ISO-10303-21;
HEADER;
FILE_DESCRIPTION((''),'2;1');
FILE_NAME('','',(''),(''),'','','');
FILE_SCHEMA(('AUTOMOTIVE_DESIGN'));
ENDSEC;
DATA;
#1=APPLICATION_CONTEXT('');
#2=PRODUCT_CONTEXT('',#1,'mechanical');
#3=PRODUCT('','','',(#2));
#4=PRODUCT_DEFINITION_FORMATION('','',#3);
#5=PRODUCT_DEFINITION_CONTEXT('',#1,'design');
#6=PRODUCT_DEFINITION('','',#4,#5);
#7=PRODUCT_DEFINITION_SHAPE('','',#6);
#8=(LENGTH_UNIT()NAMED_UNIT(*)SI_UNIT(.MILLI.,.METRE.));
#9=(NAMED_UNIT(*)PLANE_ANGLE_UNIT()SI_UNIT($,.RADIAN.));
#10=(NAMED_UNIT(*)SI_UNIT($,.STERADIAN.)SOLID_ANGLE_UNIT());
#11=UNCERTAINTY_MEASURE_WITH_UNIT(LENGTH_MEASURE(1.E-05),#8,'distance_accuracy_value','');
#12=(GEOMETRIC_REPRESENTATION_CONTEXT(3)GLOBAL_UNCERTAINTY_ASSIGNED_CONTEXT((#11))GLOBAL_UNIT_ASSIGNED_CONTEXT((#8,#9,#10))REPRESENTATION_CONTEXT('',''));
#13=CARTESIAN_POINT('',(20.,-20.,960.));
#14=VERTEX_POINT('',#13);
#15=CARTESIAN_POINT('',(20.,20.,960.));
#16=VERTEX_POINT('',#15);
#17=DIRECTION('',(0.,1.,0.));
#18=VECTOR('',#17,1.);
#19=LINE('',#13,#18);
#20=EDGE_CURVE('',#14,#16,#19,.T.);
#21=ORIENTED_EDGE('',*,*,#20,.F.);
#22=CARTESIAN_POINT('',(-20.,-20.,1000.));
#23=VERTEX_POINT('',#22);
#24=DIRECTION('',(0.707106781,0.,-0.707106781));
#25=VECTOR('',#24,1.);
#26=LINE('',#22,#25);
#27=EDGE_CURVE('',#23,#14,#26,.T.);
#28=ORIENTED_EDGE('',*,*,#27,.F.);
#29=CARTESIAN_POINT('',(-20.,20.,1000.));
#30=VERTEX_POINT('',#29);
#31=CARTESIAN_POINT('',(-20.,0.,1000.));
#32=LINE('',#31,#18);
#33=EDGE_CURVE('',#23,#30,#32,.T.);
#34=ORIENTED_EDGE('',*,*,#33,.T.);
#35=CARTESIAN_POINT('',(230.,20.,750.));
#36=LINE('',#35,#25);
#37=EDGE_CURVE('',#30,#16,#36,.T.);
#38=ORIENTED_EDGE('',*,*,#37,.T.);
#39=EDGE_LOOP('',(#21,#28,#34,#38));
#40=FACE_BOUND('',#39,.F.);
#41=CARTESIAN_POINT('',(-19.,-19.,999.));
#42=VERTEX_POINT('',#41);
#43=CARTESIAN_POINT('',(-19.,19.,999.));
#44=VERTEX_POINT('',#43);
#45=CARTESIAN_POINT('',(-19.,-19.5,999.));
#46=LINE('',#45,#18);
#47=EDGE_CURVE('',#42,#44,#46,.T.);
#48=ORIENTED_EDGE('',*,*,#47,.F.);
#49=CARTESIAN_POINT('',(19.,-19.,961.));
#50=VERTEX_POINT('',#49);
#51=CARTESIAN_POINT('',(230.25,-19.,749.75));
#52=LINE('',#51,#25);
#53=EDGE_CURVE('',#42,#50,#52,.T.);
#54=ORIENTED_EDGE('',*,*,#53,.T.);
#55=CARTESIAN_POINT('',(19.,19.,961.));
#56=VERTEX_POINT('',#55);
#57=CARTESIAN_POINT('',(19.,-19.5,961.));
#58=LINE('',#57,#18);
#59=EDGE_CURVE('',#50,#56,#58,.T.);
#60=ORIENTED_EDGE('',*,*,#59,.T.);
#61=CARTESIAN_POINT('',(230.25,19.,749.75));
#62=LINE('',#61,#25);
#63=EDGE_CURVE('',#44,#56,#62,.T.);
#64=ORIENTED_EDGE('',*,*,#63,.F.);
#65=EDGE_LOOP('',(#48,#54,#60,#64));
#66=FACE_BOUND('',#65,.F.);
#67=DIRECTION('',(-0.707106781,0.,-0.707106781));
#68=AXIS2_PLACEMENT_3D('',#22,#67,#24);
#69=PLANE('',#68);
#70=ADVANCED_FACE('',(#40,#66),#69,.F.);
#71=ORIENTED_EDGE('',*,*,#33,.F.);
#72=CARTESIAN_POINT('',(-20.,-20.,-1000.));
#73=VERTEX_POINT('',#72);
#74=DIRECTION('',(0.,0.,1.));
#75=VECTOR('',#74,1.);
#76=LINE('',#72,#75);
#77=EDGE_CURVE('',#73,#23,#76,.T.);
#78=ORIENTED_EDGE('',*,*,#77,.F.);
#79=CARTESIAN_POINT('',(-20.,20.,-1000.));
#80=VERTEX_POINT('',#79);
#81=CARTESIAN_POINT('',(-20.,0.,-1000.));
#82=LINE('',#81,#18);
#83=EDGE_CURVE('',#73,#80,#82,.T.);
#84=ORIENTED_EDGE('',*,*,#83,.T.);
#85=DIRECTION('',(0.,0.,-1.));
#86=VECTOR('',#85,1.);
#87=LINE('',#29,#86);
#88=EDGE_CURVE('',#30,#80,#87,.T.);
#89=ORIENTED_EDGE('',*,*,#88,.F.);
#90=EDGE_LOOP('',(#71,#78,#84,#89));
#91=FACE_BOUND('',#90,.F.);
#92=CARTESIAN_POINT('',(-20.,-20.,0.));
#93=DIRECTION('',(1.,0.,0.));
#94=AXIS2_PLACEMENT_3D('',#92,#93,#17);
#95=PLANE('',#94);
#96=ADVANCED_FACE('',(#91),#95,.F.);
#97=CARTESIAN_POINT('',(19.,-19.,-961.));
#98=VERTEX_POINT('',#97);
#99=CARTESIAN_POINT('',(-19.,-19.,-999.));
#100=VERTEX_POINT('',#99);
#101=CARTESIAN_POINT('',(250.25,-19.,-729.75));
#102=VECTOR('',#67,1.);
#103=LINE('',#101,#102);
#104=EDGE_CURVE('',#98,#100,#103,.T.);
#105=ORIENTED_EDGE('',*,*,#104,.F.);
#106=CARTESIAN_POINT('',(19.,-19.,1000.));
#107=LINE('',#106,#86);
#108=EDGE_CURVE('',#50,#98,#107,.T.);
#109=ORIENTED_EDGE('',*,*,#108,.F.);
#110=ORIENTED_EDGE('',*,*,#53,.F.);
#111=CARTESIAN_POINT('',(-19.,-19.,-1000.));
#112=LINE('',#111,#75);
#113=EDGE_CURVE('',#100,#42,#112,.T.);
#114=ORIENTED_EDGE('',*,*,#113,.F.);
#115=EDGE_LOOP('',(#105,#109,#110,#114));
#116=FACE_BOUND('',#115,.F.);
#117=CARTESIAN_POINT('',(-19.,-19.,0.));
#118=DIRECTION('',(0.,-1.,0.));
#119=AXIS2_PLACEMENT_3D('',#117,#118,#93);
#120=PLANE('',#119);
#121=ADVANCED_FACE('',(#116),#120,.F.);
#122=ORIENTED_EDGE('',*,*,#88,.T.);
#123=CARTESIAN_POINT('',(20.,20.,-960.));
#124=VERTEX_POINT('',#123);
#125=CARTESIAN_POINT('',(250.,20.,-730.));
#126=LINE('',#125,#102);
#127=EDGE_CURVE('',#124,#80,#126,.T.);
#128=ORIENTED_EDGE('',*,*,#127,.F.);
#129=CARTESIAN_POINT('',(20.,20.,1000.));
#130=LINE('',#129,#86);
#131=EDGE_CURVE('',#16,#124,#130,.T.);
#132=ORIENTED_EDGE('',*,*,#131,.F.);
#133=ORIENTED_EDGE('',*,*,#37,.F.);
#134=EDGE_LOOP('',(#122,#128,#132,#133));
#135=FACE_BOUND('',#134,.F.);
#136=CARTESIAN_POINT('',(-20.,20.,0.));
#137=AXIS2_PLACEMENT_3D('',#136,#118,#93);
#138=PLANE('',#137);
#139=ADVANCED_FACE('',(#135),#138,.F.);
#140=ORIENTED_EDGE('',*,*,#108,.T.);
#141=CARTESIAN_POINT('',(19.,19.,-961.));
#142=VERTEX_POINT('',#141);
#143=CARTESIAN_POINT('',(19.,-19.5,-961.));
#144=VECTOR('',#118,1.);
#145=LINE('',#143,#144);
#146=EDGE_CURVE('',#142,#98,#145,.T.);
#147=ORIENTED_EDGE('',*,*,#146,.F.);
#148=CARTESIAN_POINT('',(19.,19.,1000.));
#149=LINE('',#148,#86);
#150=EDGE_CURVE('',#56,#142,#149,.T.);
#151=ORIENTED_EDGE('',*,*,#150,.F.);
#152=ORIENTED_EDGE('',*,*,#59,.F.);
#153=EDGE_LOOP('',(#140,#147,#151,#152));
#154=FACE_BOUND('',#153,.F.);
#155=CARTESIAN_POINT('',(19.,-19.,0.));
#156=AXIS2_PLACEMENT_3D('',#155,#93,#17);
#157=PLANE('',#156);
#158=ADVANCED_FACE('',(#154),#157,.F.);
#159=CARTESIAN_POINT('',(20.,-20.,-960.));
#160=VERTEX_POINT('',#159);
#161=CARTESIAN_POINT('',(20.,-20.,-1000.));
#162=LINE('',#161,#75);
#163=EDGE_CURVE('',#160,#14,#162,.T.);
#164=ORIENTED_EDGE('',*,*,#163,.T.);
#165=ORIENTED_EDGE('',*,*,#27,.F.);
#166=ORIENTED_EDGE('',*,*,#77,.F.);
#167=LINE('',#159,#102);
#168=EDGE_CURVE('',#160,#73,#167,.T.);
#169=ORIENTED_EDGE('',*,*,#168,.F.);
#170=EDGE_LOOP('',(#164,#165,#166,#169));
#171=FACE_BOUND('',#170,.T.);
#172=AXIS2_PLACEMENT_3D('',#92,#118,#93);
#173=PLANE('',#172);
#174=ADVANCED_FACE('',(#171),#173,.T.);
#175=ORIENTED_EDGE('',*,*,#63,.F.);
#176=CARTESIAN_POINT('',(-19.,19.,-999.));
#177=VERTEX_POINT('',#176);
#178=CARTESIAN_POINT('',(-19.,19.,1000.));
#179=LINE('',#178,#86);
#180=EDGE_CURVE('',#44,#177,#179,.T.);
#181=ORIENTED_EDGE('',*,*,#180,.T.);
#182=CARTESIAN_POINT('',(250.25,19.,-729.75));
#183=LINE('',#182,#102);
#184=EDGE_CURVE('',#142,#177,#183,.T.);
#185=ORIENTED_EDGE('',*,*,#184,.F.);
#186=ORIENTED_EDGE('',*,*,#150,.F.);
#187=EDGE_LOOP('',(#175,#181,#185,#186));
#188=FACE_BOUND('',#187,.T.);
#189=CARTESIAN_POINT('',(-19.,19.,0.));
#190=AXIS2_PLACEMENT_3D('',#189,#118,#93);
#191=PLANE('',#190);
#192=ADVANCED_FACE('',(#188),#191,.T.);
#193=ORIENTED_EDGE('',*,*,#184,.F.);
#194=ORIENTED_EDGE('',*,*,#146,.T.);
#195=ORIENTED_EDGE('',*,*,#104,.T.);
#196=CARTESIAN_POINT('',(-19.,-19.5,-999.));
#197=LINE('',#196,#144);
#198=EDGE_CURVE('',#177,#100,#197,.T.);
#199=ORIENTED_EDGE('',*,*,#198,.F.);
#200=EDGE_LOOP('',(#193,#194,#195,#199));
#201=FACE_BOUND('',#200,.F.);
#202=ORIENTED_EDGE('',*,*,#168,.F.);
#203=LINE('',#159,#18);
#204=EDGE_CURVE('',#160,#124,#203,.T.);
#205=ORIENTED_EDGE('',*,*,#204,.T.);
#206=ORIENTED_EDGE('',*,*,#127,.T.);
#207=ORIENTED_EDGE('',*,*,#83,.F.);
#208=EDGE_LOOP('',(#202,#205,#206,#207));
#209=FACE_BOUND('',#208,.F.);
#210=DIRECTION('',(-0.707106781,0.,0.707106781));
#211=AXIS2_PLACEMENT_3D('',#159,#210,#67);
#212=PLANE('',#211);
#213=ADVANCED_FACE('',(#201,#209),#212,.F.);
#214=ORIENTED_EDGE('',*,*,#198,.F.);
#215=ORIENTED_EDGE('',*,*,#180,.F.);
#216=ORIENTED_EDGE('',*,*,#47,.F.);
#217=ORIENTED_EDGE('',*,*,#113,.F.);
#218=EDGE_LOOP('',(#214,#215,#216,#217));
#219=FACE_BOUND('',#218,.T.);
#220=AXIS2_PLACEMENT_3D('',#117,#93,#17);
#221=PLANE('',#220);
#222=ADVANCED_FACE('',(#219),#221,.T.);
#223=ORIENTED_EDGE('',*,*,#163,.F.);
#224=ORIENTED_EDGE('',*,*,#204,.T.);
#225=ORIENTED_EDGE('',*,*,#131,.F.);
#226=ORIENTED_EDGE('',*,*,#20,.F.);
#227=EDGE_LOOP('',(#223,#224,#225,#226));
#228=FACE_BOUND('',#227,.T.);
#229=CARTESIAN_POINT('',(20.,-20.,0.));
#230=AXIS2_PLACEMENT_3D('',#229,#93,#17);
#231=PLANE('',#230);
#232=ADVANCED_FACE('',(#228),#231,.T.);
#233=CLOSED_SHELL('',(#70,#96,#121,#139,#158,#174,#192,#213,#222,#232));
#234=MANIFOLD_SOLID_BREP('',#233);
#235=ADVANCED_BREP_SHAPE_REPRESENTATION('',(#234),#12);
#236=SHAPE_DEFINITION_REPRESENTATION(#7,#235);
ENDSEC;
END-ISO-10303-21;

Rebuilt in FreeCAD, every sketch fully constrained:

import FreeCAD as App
import Part
import Sketcher
from FreeCAD import Vector
Q = App.Units.Quantity

doc = App.newDocument("Part")
body = doc.addObject("PartDesign::Body", "Body")

# Sketch on XY plane
sketch1 = body.newObject("Sketcher::SketchObject", "Sketch")
sketch1.AttachmentSupport = (doc.getObject("XY_Plane"), [""])
sketch1.MapMode = "FlatFace"
sketch1.addGeometry([
    Part.LineSegment(Vector(-20, 20, 0), Vector(-20, -20, 0)),  # 0
    Part.LineSegment(Vector(-20, -20, 0), Vector(20, -20, 0)),  # 1
    Part.LineSegment(Vector(20, -20, 0), Vector(20, 20, 0)),  # 2
    Part.LineSegment(Vector(20, 20, 0), Vector(-20, 20, 0)),  # 3
    Part.LineSegment(Vector(19, -19, 0), Vector(-19, -19, 0)),  # 4
    Part.LineSegment(Vector(-19, -19, 0), Vector(-19, 19, 0)),  # 5
    Part.LineSegment(Vector(-19, 19, 0), Vector(19, 19, 0)),  # 6
    Part.LineSegment(Vector(19, 19, 0), Vector(19, -19, 0)),  # 7
], False)
sketch1.addConstraint([
    Sketcher.Constraint("Coincident", 0, 2, 1, 1),
    Sketcher.Constraint("Coincident", 1, 2, 2, 1),
    Sketcher.Constraint("Coincident", 2, 2, 3, 1),
    Sketcher.Constraint("Coincident", 3, 2, 0, 1),
    Sketcher.Constraint("Coincident", 4, 2, 5, 1),
    Sketcher.Constraint("Coincident", 5, 2, 6, 1),
    Sketcher.Constraint("Coincident", 6, 2, 7, 1),
    Sketcher.Constraint("Coincident", 7, 2, 4, 1),
    Sketcher.Constraint("Vertical", 0),
    Sketcher.Constraint("Horizontal", 1),
    Sketcher.Constraint("Vertical", 2),
    Sketcher.Constraint("Horizontal", 3),
    Sketcher.Constraint("Horizontal", 4),
    Sketcher.Constraint("Vertical", 5),
    Sketcher.Constraint("Horizontal", 6),
    Sketcher.Constraint("Vertical", 7),
    Sketcher.Constraint("Symmetric", 0, 2, 2, 2, -1, 1),
    Sketcher.Constraint("Symmetric", 4, 2, 6, 2, -1, 1),
    Sketcher.Constraint("Equal", 3, 0),
    Sketcher.Constraint("Equal", 6, 5),
    Sketcher.Constraint("DistanceX", 1, 1, 1, 2, Q("40 mm")),
    Sketcher.Constraint("DistanceX", 4, 2, 4, 1, Q("38 mm")),
])
pad1 = body.newObject("PartDesign::Pad", "Pad")
pad1.Profile = sketch1
pad1.Length = 2000
pad1.Midplane = True

# Sketch on XZ plane
sketch2 = body.newObject("Sketcher::SketchObject", "Sketch001")
sketch2.AttachmentSupport = (doc.getObject("XZ_Plane"), [""])
sketch2.MapMode = "FlatFace"
sketch2.AttachmentOffset = App.Placement(Vector(0, 0, 20), App.Rotation())
sketch2.addGeometry([
    Part.LineSegment(Vector(20, -960, 0), Vector(-20, -1000, 0)),  # 0
    Part.LineSegment(Vector(-20, -1000, 0), Vector(20, -1000, 0)),  # 1
    Part.LineSegment(Vector(20, -1000, 0), Vector(20, -960, 0)),  # 2
    Part.LineSegment(Vector(20, 1000, 0), Vector(-20, 1000, 0)),  # 3
    Part.LineSegment(Vector(-20, 1000, 0), Vector(20, 960, 0)),  # 4
    Part.LineSegment(Vector(20, 960, 0), Vector(20, 1000, 0)),  # 5
], False)
sketch2.addConstraint([
    Sketcher.Constraint("Coincident", 0, 2, 1, 1),
    Sketcher.Constraint("Coincident", 1, 2, 2, 1),
    Sketcher.Constraint("Coincident", 2, 2, 0, 1),
    Sketcher.Constraint("Coincident", 3, 2, 4, 1),
    Sketcher.Constraint("Coincident", 4, 2, 5, 1),
    Sketcher.Constraint("Coincident", 5, 2, 3, 1),
    Sketcher.Constraint("Horizontal", 1),
    Sketcher.Constraint("Vertical", 2),
    Sketcher.Constraint("Horizontal", 3),
    Sketcher.Constraint("Vertical", 5),
    Sketcher.Constraint("Symmetric", 1, 2, 3, 2, -1, 1),
    Sketcher.Constraint("Symmetric", 2, 2, 4, 2, -1),
    Sketcher.Constraint("Perpendicular", 0, 4),
    Sketcher.Constraint("Vertical", 0, 2, 3, 2),
    Sketcher.Constraint("DistanceX", 1, 1, 1, 2, Q("40 mm")),
    Sketcher.Constraint("DistanceY", 0, 2, -1, 1, Q("1000 mm")),
])
pocket1 = body.newObject("PartDesign::Pocket", "Pocket")
pocket1.Profile = sketch2
pocket1.Length = 100

doc.recompute()
